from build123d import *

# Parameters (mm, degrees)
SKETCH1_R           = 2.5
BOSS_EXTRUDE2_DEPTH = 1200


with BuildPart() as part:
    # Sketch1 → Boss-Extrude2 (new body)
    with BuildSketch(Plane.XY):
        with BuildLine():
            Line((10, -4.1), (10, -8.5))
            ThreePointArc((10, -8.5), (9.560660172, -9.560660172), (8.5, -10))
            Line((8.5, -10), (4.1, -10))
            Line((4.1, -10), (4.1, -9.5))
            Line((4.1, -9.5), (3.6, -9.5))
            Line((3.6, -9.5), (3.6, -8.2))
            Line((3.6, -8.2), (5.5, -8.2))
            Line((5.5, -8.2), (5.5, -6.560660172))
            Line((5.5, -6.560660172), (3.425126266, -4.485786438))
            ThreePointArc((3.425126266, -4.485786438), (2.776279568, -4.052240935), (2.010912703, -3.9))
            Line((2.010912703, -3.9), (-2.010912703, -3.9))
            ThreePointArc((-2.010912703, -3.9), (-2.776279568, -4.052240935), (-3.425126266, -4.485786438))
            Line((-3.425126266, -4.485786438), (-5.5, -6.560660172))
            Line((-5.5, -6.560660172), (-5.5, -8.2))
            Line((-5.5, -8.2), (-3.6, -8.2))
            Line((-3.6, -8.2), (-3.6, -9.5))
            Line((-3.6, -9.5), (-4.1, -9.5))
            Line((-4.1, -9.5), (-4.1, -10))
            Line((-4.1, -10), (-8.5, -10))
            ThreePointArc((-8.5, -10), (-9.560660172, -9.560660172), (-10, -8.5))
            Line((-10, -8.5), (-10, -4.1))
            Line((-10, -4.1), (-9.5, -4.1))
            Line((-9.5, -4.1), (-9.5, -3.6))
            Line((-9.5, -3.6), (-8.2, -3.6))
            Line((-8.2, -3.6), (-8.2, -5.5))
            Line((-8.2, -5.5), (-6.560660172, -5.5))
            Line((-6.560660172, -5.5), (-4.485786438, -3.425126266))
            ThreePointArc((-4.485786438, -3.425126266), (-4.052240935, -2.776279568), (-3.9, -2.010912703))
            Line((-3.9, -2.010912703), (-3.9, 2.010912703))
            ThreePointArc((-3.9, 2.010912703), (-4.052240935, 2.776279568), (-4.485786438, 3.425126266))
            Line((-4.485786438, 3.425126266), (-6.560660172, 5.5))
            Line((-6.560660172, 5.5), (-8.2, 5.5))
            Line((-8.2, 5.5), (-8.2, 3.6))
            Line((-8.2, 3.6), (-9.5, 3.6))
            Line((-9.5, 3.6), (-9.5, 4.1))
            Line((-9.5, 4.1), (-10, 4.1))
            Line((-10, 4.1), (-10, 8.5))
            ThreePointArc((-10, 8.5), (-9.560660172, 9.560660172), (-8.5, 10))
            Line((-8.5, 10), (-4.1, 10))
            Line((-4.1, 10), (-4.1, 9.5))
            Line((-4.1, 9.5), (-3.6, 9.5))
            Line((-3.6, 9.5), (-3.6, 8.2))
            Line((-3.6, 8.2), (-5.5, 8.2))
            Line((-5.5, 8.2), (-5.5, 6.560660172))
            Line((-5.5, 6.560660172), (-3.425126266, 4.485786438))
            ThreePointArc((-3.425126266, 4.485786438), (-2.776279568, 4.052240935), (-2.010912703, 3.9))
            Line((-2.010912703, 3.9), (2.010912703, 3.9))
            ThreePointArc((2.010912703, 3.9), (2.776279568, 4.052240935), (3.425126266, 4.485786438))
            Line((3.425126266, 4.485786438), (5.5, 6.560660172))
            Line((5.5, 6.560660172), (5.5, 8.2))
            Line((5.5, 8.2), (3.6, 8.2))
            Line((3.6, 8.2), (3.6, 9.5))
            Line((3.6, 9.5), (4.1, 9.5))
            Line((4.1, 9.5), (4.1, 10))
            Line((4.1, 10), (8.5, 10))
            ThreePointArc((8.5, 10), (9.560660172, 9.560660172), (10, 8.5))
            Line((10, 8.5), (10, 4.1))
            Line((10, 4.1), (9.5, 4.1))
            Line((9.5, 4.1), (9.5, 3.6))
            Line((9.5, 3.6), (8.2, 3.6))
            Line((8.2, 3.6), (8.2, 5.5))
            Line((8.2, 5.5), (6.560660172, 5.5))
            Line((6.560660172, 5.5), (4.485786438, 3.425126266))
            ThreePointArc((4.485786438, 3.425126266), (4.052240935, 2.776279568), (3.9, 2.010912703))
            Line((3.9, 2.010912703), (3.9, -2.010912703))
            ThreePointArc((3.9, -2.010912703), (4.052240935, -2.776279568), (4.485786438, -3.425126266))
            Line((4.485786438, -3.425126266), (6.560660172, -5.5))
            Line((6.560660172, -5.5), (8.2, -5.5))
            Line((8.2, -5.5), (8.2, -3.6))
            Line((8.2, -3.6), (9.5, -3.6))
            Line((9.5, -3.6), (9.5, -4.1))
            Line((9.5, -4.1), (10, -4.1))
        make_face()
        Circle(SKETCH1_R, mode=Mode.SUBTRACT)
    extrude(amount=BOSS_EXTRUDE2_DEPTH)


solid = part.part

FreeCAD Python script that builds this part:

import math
import FreeCAD as App
import Part
import Sketcher

V = App.Vector

doc = App.newDocument("Part")
body = doc.addObject("PartDesign::Body", "Body")

# Sketch on XY plane
sketch1 = doc.addObject("Sketcher::SketchObject", "Sketch")
body.addObject(sketch1)
sketch1.AttachmentSupport = (doc.XY_Plane, [""])
sketch1.MapMode = "FlatFace"
sketch1.addGeometry(Part.LineSegment(V(10, -8.5, 0), V(10, -4.1, 0)), False)
sketch1.addGeometry(Part.LineSegment(V(10, -4.1, 0), V(9.5, -4.1, 0)), False)
sketch1.addGeometry(Part.LineSegment(V(9.5, -4.1, 0), V(9.5, -3.6, 0)), False)
sketch1.addGeometry(Part.LineSegment(V(9.5, -3.6, 0), V(8.2, -3.6, 0)), False)
sketch1.addGeometry(Part.LineSegment(V(8.2, -3.6, 0), V(8.2, -5.5, 0)), False)
sketch1.addGeometry(Part.LineSegment(V(8.2, -5.5, 0), V(6.56066, -5.5, 0)), False)
sketch1.addGeometry(Part.LineSegment(V(6.56066, -5.5, 0), V(4.485786, -3.425126, 0)), False)
sketch1.addGeometry(Part.ArcOfCircle(Part.Circle(V(5.9, -2.010913, 0), V(0, 0, 1), 2), math.radians(180), math.radians(225)), False)
sketch1.addGeometry(Part.LineSegment(V(3.9, -2.010913, 0), V(3.9, 2.010913, 0)), False)
sketch1.addGeometry(Part.ArcOfCircle(Part.Circle(V(5.9, 2.010913, 0), V(0, 0, 1), 2), math.radians(135), math.radians(180)), False)
sketch1.addGeometry(Part.LineSegment(V(4.485786, 3.425126, 0), V(6.56066, 5.5, 0)), False)
sketch1.addGeometry(Part.LineSegment(V(6.56066, 5.5, 0), V(8.2, 5.5, 0)), False)
sketch1.addGeometry(Part.LineSegment(V(8.2, 5.5, 0), V(8.2, 3.6, 0)), False)
sketch1.addGeometry(Part.LineSegment(V(8.2, 3.6, 0), V(9.5, 3.6, 0)), False)
sketch1.addGeometry(Part.LineSegment(V(9.5, 3.6, 0), V(9.5, 4.1, 0)), False)
sketch1.addGeometry(Part.LineSegment(V(9.5, 4.1, 0), V(10, 4.1, 0)), False)
sketch1.addGeometry(Part.LineSegment(V(10, 4.1, 0), V(10, 8.5, 0)), False)
sketch1.addGeometry(Part.ArcOfCircle(Part.Circle(V(8.5, 8.5, 0), V(0, 0, 1), 1.5), math.radians(0), math.radians(90)), False)
sketch1.addGeometry(Part.LineSegment(V(8.5, 10, 0), V(4.1, 10, 0)), False)
sketch1.addGeometry(Part.LineSegment(V(4.1, 10, 0), V(4.1, 9.5, 0)), False)
sketch1.addGeometry(Part.LineSegment(V(4.1, 9.5, 0), V(3.6, 9.5, 0)), False)
sketch1.addGeometry(Part.LineSegment(V(3.6, 9.5, 0), V(3.6, 8.2, 0)), False)
sketch1.addGeometry(Part.LineSegment(V(3.6, 8.2, 0), V(5.5, 8.2, 0)), False)
sketch1.addGeometry(Part.LineSegment(V(5.5, 8.2, 0), V(5.5, 6.56066, 0)), False)
sketch1.addGeometry(Part.LineSegment(V(5.5, 6.56066, 0), V(3.425126, 4.485786, 0)), False)
sketch1.addGeometry(Part.ArcOfCircle(Part.Circle(V(2.010913, 5.9, 0), V(0, 0, 1), 2), math.radians(-90), math.radians(-45)), False)
sketch1.addGeometry(Part.LineSegment(V(2.010913, 3.9, 0), V(-2.010913, 3.9, 0)), False)
sketch1.addGeometry(Part.ArcOfCircle(Part.Circle(V(-2.010913, 5.9, 0), V(0, 0, 1), 2), math.radians(-135), math.radians(-90)), False)
sketch1.addGeometry(Part.LineSegment(V(-3.425126, 4.485786, 0), V(-5.5, 6.56066, 0)), False)
sketch1.addGeometry(Part.LineSegment(V(-5.5, 6.56066, 0), V(-5.5, 8.2, 0)), False)
sketch1.addGeometry(Part.LineSegment(V(-5.5, 8.2, 0), V(-3.6, 8.2, 0)), False)
sketch1.addGeometry(Part.LineSegment(V(-3.6, 8.2, 0), V(-3.6, 9.5, 0)), False)
sketch1.addGeometry(Part.LineSegment(V(-3.6, 9.5, 0), V(-4.1, 9.5, 0)), False)
sketch1.addGeometry(Part.LineSegment(V(-4.1, 9.5, 0), V(-4.1, 10, 0)), False)
sketch1.addGeometry(Part.LineSegment(V(-4.1, 10, 0), V(-8.5, 10, 0)), False)
sketch1.addGeometry(Part.ArcOfCircle(Part.Circle(V(-8.5, 8.5, 0), V(0, 0, 1), 1.5), math.radians(90), math.radians(180)), False)
sketch1.addGeometry(Part.LineSegment(V(-10, 8.5, 0), V(-10, 4.1, 0)), False)
sketch1.addGeometry(Part.LineSegment(V(-10, 4.1, 0), V(-9.5, 4.1, 0)), False)
sketch1.addGeometry(Part.LineSegment(V(-9.5, 4.1, 0), V(-9.5, 3.6, 0)), False)
sketch1.addGeometry(Part.LineSegment(V(-9.5, 3.6, 0), V(-8.2, 3.6, 0)), False)
sketch1.addGeometry(Part.LineSegment(V(-8.2, 3.6, 0), V(-8.2, 5.5, 0)), False)
sketch1.addGeometry(Part.LineSegment(V(-8.2, 5.5, 0), V(-6.56066, 5.5, 0)), False)
sketch1.addGeometry(Part.LineSegment(V(-6.56066, 5.5, 0), V(-4.485786, 3.425126, 0)), False)
sketch1.addGeometry(Part.ArcOfCircle(Part.Circle(V(-5.9, 2.010913, 0), V(0, 0, 1), 2), math.radians(0), math.radians(45)), False)
sketch1.addGeometry(Part.LineSegment(V(-3.9, 2.010913, 0), V(-3.9, -2.010913, 0)), False)
sketch1.addGeometry(Part.ArcOfCircle(Part.Circle(V(-5.9, -2.010913, 0), V(0, 0, 1), 2), math.radians(-45), math.radians(0)), False)
sketch1.addGeometry(Part.LineSegment(V(-4.485786, -3.425126, 0), V(-6.56066, -5.5, 0)), False)
sketch1.addGeometry(Part.LineSegment(V(-6.56066, -5.5, 0), V(-8.2, -5.5, 0)), False)
sketch1.addGeometry(Part.LineSegment(V(-8.2, -5.5, 0), V(-8.2, -3.6, 0)), False)
sketch1.addGeometry(Part.LineSegment(V(-8.2, -3.6, 0), V(-9.5, -3.6, 0)), False)
sketch1.addGeometry(Part.LineSegment(V(-9.5, -3.6, 0), V(-9.5, -4.1, 0)), False)
sketch1.addGeometry(Part.LineSegment(V(-9.5, -4.1, 0), V(-10, -4.1, 0)), False)
sketch1.addGeometry(Part.LineSegment(V(-10, -4.1, 0), V(-10, -8.5, 0)), False)
sketch1.addGeometry(Part.ArcOfCircle(Part.Circle(V(-8.5, -8.5, 0), V(0, 0, 1), 1.5), math.radians(180), math.radians(270)), False)
sketch1.addGeometry(Part.LineSegment(V(-8.5, -10, 0), V(-4.1, -10, 0)), False)
sketch1.addGeometry(Part.LineSegment(V(-4.1, -10, 0), V(-4.1, -9.5, 0)), False)
sketch1.addGeometry(Part.LineSegment(V(-4.1, -9.5, 0), V(-3.6, -9.5, 0)), False)
sketch1.addGeometry(Part.LineSegment(V(-3.6, -9.5, 0), V(-3.6, -8.2, 0)), False)
sketch1.addGeometry(Part.LineSegment(V(-3.6, -8.2, 0), V(-5.5, -8.2, 0)), False)
sketch1.addGeometry(Part.LineSegment(V(-5.5, -8.2, 0), V(-5.5, -6.56066, 0)), False)
sketch1.addGeometry(Part.LineSegment(V(-5.5, -6.56066, 0), V(-3.425126, -4.485786, 0)), False)
sketch1.addGeometry(Part.ArcOfCircle(Part.Circle(V(-2.010913, -5.9, 0), V(0, 0, 1), 2), math.radians(90), math.radians(135)), False)
sketch1.addGeometry(Part.LineSegment(V(-2.010913, -3.9, 0), V(2.010913, -3.9, 0)), False)
sketch1.addGeometry(Part.ArcOfCircle(Part.Circle(V(2.010913, -5.9, 0), V(0, 0, 1), 2), math.radians(45), math.radians(90)), False)
sketch1.addGeometry(Part.LineSegment(V(3.425126, -4.485786, 0), V(5.5, -6.56066, 0)), False)
sketch1.addGeometry(Part.LineSegment(V(5.5, -6.56066, 0), V(5.5, -8.2, 0)), False)
sketch1.addGeometry(Part.LineSegment(V(5.5, -8.2, 0), V(3.6, -8.2, 0)), False)
sketch1.addGeometry(Part.LineSegment(V(3.6, -8.2, 0), V(3.6, -9.5, 0)), False)
sketch1.addGeometry(Part.LineSegment(V(3.6, -9.5, 0), V(4.1, -9.5, 0)), False)
sketch1.addGeometry(Part.LineSegment(V(4.1, -9.5, 0), V(4.1, -10, 0)), False)
sketch1.addGeometry(Part.LineSegment(V(4.1, -10, 0), V(8.5, -10, 0)), False)
sketch1.addGeometry(Part.ArcOfCircle(Part.Circle(V(8.5, -8.5, 0), V(0, 0, 1), 1.5), math.radians(-90), math.radians(0)), False)
sketch1.addGeometry(Part.Circle(V(0, 0, 0), V(0, 0, 1), 2.5), False)
sketch1.addConstraint(Sketcher.Constraint("Coincident", 0, 2, 1, 1))
sketch1.addConstraint(Sketcher.Constraint("Coincident", 1, 2, 2, 1))
sketch1.addConstraint(Sketcher.Constraint("Coincident", 2, 2, 3, 1))
sketch1.addConstraint(Sketcher.Constraint("Coincident", 3, 2, 4, 1))
sketch1.addConstraint(Sketcher.Constraint("Coincident", 4, 2, 5, 1))
sketch1.addConstraint(Sketcher.Constraint("Coincident", 5, 2, 6, 1))
sketch1.addConstraint(Sketcher.Constraint("Tangent", 6, 2, 7, 2))
sketch1.addConstraint(Sketcher.Constraint("Tangent", 7, 1, 8, 1))
sketch1.addConstraint(Sketcher.Constraint("Tangent", 8, 2, 9, 2))
sketch1.addConstraint(Sketcher.Constraint("Tangent", 9, 1, 10, 1))
sketch1.addConstraint(Sketcher.Constraint("Coincident", 10, 2, 11, 1))
sketch1.addConstraint(Sketcher.Constraint("Coincident", 11, 2, 12, 1))
sketch1.addConstraint(Sketcher.Constraint("Coincident", 12, 2, 13, 1))
sketch1.addConstraint(Sketcher.Constraint("Coincident", 13, 2, 14, 1))
sketch1.addConstraint(Sketcher.Constraint("Coincident", 14, 2, 15, 1))
sketch1.addConstraint(Sketcher.Constraint("Coincident", 15, 2, 16, 1))
sketch1.addConstraint(Sketcher.Constraint("Tangent", 16, 2, 17, 1))
sketch1.addConstraint(Sketcher.Constraint("Tangent", 17, 2, 18, 1))
sketch1.addConstraint(Sketcher.Constraint("Coincident", 18, 2, 19, 1))
sketch1.addConstraint(Sketcher.Constraint("Coincident", 19, 2, 20, 1))
sketch1.addConstraint(Sketcher.Constraint("Coincident", 20, 2, 21, 1))
sketch1.addConstraint(Sketcher.Constraint("Coincident", 21, 2, 22, 1))
sketch1.addConstraint(Sketcher.Constraint("Coincident", 22, 2, 23, 1))
sketch1.addConstraint(Sketcher.Constraint("Coincident", 23, 2, 24, 1))
sketch1.addConstraint(Sketcher.Constraint("Tangent", 24, 2, 25, 2))
sketch1.addConstraint(Sketcher.Constraint("Tangent", 25, 1, 26, 1))
sketch1.addConstraint(Sketcher.Constraint("Tangent", 26, 2, 27, 2))
sketch1.addConstraint(Sketcher.Constraint("Tangent", 27, 1, 28, 1))
sketch1.addConstraint(Sketcher.Constraint("Coincident", 28, 2, 29, 1))
sketch1.addConstraint(Sketcher.Constraint("Coincident", 29, 2, 30, 1))
sketch1.addConstraint(Sketcher.Constraint("Coincident", 30, 2, 31, 1))
sketch1.addConstraint(Sketcher.Constraint("Coincident", 31, 2, 32, 1))
sketch1.addConstraint(Sketcher.Constraint("Coincident", 32, 2, 33, 1))
sketch1.addConstraint(Sketcher.Constraint("Coincident", 33, 2, 34, 1))
sketch1.addConstraint(Sketcher.Constraint("Tangent", 34, 2, 35, 1))
sketch1.addConstraint(Sketcher.Constraint("Tangent", 35, 2, 36, 1))
sketch1.addConstraint(Sketcher.Constraint("Coincident", 36, 2, 37, 1))
sketch1.addConstraint(Sketcher.Constraint("Coincident", 37, 2, 38, 1))
sketch1.addConstraint(Sketcher.Constraint("Coincident", 38, 2, 39, 1))
sketch1.addConstraint(Sketcher.Constraint("Coincident", 39, 2, 40, 1))
sketch1.addConstraint(Sketcher.Constraint("Coincident", 40, 2, 41, 1))
sketch1.addConstraint(Sketcher.Constraint("Coincident", 41, 2, 42, 1))
sketch1.addConstraint(Sketcher.Constraint("Tangent", 42, 2, 43, 2))
sketch1.addConstraint(Sketcher.Constraint("Tangent", 43, 1, 44, 1))
sketch1.addConstraint(Sketcher.Constraint("Tangent", 44, 2, 45, 2))
sketch1.addConstraint(Sketcher.Constraint("Tangent", 45, 1, 46, 1))
sketch1.addConstraint(Sketcher.Constraint("Coincident", 46, 2, 47, 1))
sketch1.addConstraint(Sketcher.Constraint("Coincident", 47, 2, 48, 1))
sketch1.addConstraint(Sketcher.Constraint("Coincident", 48, 2, 49, 1))
sketch1.addConstraint(Sketcher.Constraint("Coincident", 49, 2, 50, 1))
sketch1.addConstraint(Sketcher.Constraint("Coincident", 50, 2, 51, 1))
sketch1.addConstraint(Sketcher.Constraint("Coincident", 51, 2, 52, 1))
sketch1.addConstraint(Sketcher.Constraint("Tangent", 52, 2, 53, 1))
sketch1.addConstraint(Sketcher.Constraint("Tangent", 53, 2, 54, 1))
sketch1.addConstraint(Sketcher.Constraint("Coincident", 54, 2, 55, 1))
sketch1.addConstraint(Sketcher.Constraint("Coincident", 55, 2, 56, 1))
sketch1.addConstraint(Sketcher.Constraint("Coincident", 56, 2, 57, 1))
sketch1.addConstraint(Sketcher.Constraint("Coincident", 57, 2, 58, 1))
sketch1.addConstraint(Sketcher.Constraint("Coincident", 58, 2, 59, 1))
sketch1.addConstraint(Sketcher.Constraint("Coincident", 59, 2, 60, 1))
sketch1.addConstraint(Sketcher.Constraint("Tangent", 60, 2, 61, 2))
sketch1.addConstraint(Sketcher.Constraint("Tangent", 61, 1, 62, 1))
sketch1.addConstraint(Sketcher.Constraint("Tangent", 62, 2, 63, 2))
sketch1.addConstraint(Sketcher.Constraint("Tangent", 63, 1, 64, 1))
sketch1.addConstraint(Sketcher.Constraint("Coincident", 64, 2, 65, 1))
sketch1.addConstraint(Sketcher.Constraint("Coincident", 65, 2, 66, 1))
sketch1.addConstraint(Sketcher.Constraint("Coincident", 66, 2, 67, 1))
sketch1.addConstraint(Sketcher.Constraint("Coincident", 67, 2, 68, 1))
sketch1.addConstraint(Sketcher.Constraint("Coincident", 68, 2, 69, 1))
sketch1.addConstraint(Sketcher.Constraint("Coincident", 69, 2, 70, 1))
sketch1.addConstraint(Sketcher.Constraint("Tangent", 70, 2, 71, 1))
sketch1.addConstraint(Sketcher.Constraint("Tangent", 71, 2, 0, 1))
sketch1.addConstraint(Sketcher.Constraint("Vertical", 0))
sketch1.addConstraint(Sketcher.Constraint("Horizontal", 1))
sketch1.addConstraint(Sketcher.Constraint("Vertical", 2))
sketch1.addConstraint(Sketcher.Constraint("Horizontal", 3))
sketch1.addConstraint(Sketcher.Constraint("Vertical", 4))
sketch1.addConstraint(Sketcher.Constraint("Horizontal", 5))
sketch1.addConstraint(Sketcher.Constraint("Vertical", 8))
sketch1.addConstraint(Sketcher.Constraint("Horizontal", 11))
sketch1.addConstraint(Sketcher.Constraint("Vertical", 12))
sketch1.addConstraint(Sketcher.Constraint("Horizontal", 13))
sketch1.addConstraint(Sketcher.Constraint("Vertical", 14))
sketch1.addConstraint(Sketcher.Constraint("Horizontal", 15))
sketch1.addConstraint(Sketcher.Constraint("Vertical", 16))
sketch1.addConstraint(Sketcher.Constraint("Horizontal", 18))
sketch1.addConstraint(Sketcher.Constraint("Vertical", 19))
sketch1.addConstraint(Sketcher.Constraint("Horizontal", 20))
sketch1.addConstraint(Sketcher.Constraint("Vertical", 21))
sketch1.addConstraint(Sketcher.Constraint("Horizontal", 22))
sketch1.addConstraint(Sketcher.Constraint("Vertical", 23))
sketch1.addConstraint(Sketcher.Constraint("Horizontal", 26))
sketch1.addConstraint(Sketcher.Constraint("Vertical", 29))
sketch1.addConstraint(Sketcher.Constraint("Horizontal", 30))
sketch1.addConstraint(Sketcher.Constraint("Vertical", 31))
sketch1.addConstraint(Sketcher.Constraint("Horizontal", 32))
sketch1.addConstraint(Sketcher.Constraint("Vertical", 33))
sketch1.addConstraint(Sketcher.Constraint("Horizontal", 34))
sketch1.addConstraint(Sketcher.Constraint("Vertical", 36))
sketch1.addConstraint(Sketcher.Constraint("Horizontal", 37))
sketch1.addConstraint(Sketcher.Constraint("Vertical", 38))
sketch1.addConstraint(Sketcher.Constraint("Horizontal", 39))
sketch1.addConstraint(Sketcher.Constraint("Vertical", 40))
sketch1.addConstraint(Sketcher.Constraint("Horizontal", 41))
sketch1.addConstraint(Sketcher.Constraint("Vertical", 44))
sketch1.addConstraint(Sketcher.Constraint("Horizontal", 47))
sketch1.addConstraint(Sketcher.Constraint("Vertical", 48))
sketch1.addConstraint(Sketcher.Constraint("Horizontal", 49))
sketch1.addConstraint(Sketcher.Constraint("Vertical", 50))
sketch1.addConstraint(Sketcher.Constraint("Horizontal", 51))
sketch1.addConstraint(Sketcher.Constraint("Vertical", 52))
sketch1.addConstraint(Sketcher.Constraint("Horizontal", 54))
sketch1.addConstraint(Sketcher.Constraint("Vertical", 55))
sketch1.addConstraint(Sketcher.Constraint("Horizontal", 56))
sketch1.addConstraint(Sketcher.Constraint("Vertical", 57))
sketch1.addConstraint(Sketcher.Constraint("Horizontal", 58))
sketch1.addConstraint(Sketcher.Constraint("Vertical", 59))
sketch1.addConstraint(Sketcher.Constraint("Horizontal", 62))
sketch1.addConstraint(Sketcher.Constraint("Vertical", 65))
sketch1.addConstraint(Sketcher.Constraint("Horizontal", 66))
sketch1.addConstraint(Sketcher.Constraint("Vertical", 67))
sketch1.addConstraint(Sketcher.Constraint("Horizontal", 68))
sketch1.addConstraint(Sketcher.Constraint("Vertical", 69))
sketch1.addConstraint(Sketcher.Constraint("Horizontal", 70))
sketch1.addConstraint(Sketcher.Constraint("Coincident", 72, 3, -1, 1))
sketch1.addConstraint(Sketcher.Constraint("Equal", 7, 9))
sketch1.addConstraint(Sketcher.Constraint("Equal", 9, 25))
sketch1.addConstraint(Sketcher.Constraint("Equal", 25, 27))
sketch1.addConstraint(Sketcher.Constraint("Equal", 17, 35))
sketch1.addConstraint(Sketcher.Constraint("Equal", 27, 43))
sketch1.addConstraint(Sketcher.Constraint("Equal", 43, 45))
sketch1.addConstraint(Sketcher.Constraint("Equal", 35, 53))
sketch1.addConstraint(Sketcher.Constraint("Equal", 45, 61))
sketch1.addConstraint(Sketcher.Constraint("Equal", 61, 63))
sketch1.addConstraint(Sketcher.Constraint("Equal", 53, 71))
sketch1.addConstraint(Sketcher.Constraint("Symmetric", 7, 3, 43, 3, -1, 1))
sketch1.addConstraint(Sketcher.Constraint("Symmetric", 17, 3, 53, 3, -1, 1))
sketch1.addConstraint(Sketcher.Constraint("Symmetric", 25, 3, 61, 3, -1, 1))
sketch1.addConstraint(Sketcher.Constraint("Symmetric", 35, 3, 71, 3, -1, 1))
sketch1.addConstraint(Sketcher.Constraint("Symmetric", 1, 2, 37, 2, -1, 1))
sketch1.addConstraint(Sketcher.Constraint("Symmetric", 3, 2, 39, 2, -1, 1))
sketch1.addConstraint(Sketcher.Constraint("Symmetric", 5, 2, 41, 2, -1, 1))
sketch1.addConstraint(Sketcher.Constraint("Symmetric", 9, 1, 45, 1, -1, 1))
sketch1.addConstraint(Sketcher.Constraint("Symmetric", 11, 2, 47, 2, -1, 1))
sketch1.addConstraint(Sketcher.Constraint("Symmetric", 13, 2, 49, 2, -1, 1))
sketch1.addConstraint(Sketcher.Constraint("Symmetric", 19, 2, 55, 2, -1, 1))
sketch1.addConstraint(Sketcher.Constraint("Symmetric", 21, 2, 57, 2, -1, 1))
sketch1.addConstraint(Sketcher.Constraint("Symmetric", 23, 2, 59, 2, -1, 1))
sketch1.addConstraint(Sketcher.Constraint("Symmetric", 27, 1, 63, 1, -1, 1))
sketch1.addConstraint(Sketcher.Constraint("Symmetric", 29, 2, 65, 2, -1, 1))
sketch1.addConstraint(Sketcher.Constraint("Symmetric", 31, 2, 67, 2, -1, 1))
sketch1.addConstraint(Sketcher.Constraint("Symmetric", 17, 3, 35, 3, -2))
sketch1.addConstraint(Sketcher.Constraint("Symmetric", 24, 2, 27, 1, -2))
sketch1.addConstraint(Sketcher.Constraint("Symmetric", 22, 2, 29, 2, -2))
sketch1.addConstraint(Sketcher.Constraint("Symmetric", 20, 2, 31, 2, -2))
sketch1.addConstraint(Sketcher.Constraint("Symmetric", 14, 2, 37, 2, -2))
sketch1.addConstraint(Sketcher.Constraint("Symmetric", 12, 2, 39, 2, -2))
sketch1.addConstraint(Sketcher.Constraint("Symmetric", 10, 2, 41, 2, -2))
sketch1.addConstraint(Sketcher.Constraint("Perpendicular", 6, 10))
sketch1.addConstraint(Sketcher.Constraint("Parallel", 10, 24))
sketch1.addConstraint(Sketcher.Constraint("Perpendicular", 24, 28))
sketch1.addConstraint(Sketcher.Constraint("Horizontal", 1, 2, 50, 2))
sketch1.addConstraint(Sketcher.Constraint("Vertical", 33, 2, 54, 2))
sketch1.addConstraint(Sketcher.Constraint("Vertical", 19, 2, 68, 2))
sketch1.addConstraint(Sketcher.Constraint("Equal", 15, 20))
sketch1.addConstraint(Sketcher.Constraint("Equal", 70, 0))
sketch1.addConstraint(Sketcher.Constraint("Equal", 68, 2))
sketch1.addConstraint(Sketcher.Constraint("Equal", 66, 4))
sketch1.addConstraint(Sketcher.Constraint("Equal", 62, 8))
sketch1.addConstraint(Sketcher.Constraint("Equal", 14, 19))
sketch1.addConstraint(Sketcher.Constraint("Equal", 49, 21))
sketch1.addConstraint(Sketcher.Constraint("Equal", 47, 23))
sketch1.addConstraint(Sketcher.Constraint("Equal", 10, 24))
sketch1.addConstraint(Sketcher.Constraint("Diameter", 72, 5.0))
sketch1.addConstraint(Sketcher.Constraint("Radius", 7, 2.0))
sketch1.addConstraint(Sketcher.Constraint("Radius", 17, 1.5))
sketch1.addConstraint(Sketcher.Constraint("DistanceX", 1, 2, 1, 1, 0.5))
sketch1.addConstraint(Sketcher.Constraint("DistanceX", 3, 2, 3, 1, 1.3))
sketch1.addConstraint(Sketcher.Constraint("DistanceX", 18, 2, 18, 1, 4.4))
sketch1.addConstraint(Sketcher.Constraint("DistanceX", 22, 1, 22, 2, 1.9))
sketch1.addConstraint(Sketcher.Constraint("DistanceX", -1, 1, 0, 2, 10.0))
sketch1.addConstraint(Sketcher.Constraint("DistanceX", -1, 1, 7, 3, 5.9))
sketch1.addConstraint(Sketcher.Constraint("DistanceX", 5, 2, 5, 1, 1.63934))
pad1 = doc.addObject("PartDesign::Pad", "Pad")
body.addObject(pad1)
pad1.Profile = sketch1
pad1.Length = 1200

doc.recompute()
